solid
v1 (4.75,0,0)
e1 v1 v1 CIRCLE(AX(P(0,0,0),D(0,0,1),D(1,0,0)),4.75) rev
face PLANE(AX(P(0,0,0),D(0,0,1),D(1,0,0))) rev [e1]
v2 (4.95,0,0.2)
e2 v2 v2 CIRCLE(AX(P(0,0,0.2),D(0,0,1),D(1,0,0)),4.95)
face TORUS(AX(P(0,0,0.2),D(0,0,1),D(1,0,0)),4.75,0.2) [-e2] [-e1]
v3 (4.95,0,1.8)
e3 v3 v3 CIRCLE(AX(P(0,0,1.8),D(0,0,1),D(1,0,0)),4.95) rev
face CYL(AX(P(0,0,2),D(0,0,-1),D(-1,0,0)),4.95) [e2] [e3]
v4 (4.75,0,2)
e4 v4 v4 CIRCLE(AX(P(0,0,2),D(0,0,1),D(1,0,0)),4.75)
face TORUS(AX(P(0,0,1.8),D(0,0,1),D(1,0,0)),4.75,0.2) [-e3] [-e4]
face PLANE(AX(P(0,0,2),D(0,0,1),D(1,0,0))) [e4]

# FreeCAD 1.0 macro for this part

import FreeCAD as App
import Part
import Sketcher


def edges_at(feature, points):
    """Names of the edges that pass closest to the given points."""
    edges = feature.Shape.Edges
    near = lambda p: min(range(len(edges)), key=lambda i: edges[i].distToShape(Part.Vertex(*p))[0])
    return sorted({f"Edge{near(p) + 1}" for p in points})

doc = App.newDocument("Part")
body = doc.addObject("PartDesign::Body", "Body")

sketch1 = body.newObject("Sketcher::SketchObject", "Sketch")
sketch1.AttachmentSupport = (doc.getObject("XY_Plane"), [""])
sketch1.MapMode = "FlatFace"
sketch1.addGeometry(Part.Circle(App.Vector(0, 0, 0), App.Vector(0, 0, 1), 5), False)
sketch1.addConstraint(Sketcher.Constraint("Coincident", 0, 3, -1, 1))
sketch1.addConstraint(Sketcher.Constraint("Diameter", 0, 9.9))
pad1 = body.newObject("PartDesign::Pad", "Pad")
pad1.Profile = sketch1
pad1.Length = 2
doc.recompute()

fillet = body.newObject("PartDesign::Fillet", "Fillet")
fillet.Base = (pad1, edges_at(pad1, [(-4.95, 0, 0), (-4.95, 0, 2)]))
fillet.Radius = 0.2

doc.recompute()
